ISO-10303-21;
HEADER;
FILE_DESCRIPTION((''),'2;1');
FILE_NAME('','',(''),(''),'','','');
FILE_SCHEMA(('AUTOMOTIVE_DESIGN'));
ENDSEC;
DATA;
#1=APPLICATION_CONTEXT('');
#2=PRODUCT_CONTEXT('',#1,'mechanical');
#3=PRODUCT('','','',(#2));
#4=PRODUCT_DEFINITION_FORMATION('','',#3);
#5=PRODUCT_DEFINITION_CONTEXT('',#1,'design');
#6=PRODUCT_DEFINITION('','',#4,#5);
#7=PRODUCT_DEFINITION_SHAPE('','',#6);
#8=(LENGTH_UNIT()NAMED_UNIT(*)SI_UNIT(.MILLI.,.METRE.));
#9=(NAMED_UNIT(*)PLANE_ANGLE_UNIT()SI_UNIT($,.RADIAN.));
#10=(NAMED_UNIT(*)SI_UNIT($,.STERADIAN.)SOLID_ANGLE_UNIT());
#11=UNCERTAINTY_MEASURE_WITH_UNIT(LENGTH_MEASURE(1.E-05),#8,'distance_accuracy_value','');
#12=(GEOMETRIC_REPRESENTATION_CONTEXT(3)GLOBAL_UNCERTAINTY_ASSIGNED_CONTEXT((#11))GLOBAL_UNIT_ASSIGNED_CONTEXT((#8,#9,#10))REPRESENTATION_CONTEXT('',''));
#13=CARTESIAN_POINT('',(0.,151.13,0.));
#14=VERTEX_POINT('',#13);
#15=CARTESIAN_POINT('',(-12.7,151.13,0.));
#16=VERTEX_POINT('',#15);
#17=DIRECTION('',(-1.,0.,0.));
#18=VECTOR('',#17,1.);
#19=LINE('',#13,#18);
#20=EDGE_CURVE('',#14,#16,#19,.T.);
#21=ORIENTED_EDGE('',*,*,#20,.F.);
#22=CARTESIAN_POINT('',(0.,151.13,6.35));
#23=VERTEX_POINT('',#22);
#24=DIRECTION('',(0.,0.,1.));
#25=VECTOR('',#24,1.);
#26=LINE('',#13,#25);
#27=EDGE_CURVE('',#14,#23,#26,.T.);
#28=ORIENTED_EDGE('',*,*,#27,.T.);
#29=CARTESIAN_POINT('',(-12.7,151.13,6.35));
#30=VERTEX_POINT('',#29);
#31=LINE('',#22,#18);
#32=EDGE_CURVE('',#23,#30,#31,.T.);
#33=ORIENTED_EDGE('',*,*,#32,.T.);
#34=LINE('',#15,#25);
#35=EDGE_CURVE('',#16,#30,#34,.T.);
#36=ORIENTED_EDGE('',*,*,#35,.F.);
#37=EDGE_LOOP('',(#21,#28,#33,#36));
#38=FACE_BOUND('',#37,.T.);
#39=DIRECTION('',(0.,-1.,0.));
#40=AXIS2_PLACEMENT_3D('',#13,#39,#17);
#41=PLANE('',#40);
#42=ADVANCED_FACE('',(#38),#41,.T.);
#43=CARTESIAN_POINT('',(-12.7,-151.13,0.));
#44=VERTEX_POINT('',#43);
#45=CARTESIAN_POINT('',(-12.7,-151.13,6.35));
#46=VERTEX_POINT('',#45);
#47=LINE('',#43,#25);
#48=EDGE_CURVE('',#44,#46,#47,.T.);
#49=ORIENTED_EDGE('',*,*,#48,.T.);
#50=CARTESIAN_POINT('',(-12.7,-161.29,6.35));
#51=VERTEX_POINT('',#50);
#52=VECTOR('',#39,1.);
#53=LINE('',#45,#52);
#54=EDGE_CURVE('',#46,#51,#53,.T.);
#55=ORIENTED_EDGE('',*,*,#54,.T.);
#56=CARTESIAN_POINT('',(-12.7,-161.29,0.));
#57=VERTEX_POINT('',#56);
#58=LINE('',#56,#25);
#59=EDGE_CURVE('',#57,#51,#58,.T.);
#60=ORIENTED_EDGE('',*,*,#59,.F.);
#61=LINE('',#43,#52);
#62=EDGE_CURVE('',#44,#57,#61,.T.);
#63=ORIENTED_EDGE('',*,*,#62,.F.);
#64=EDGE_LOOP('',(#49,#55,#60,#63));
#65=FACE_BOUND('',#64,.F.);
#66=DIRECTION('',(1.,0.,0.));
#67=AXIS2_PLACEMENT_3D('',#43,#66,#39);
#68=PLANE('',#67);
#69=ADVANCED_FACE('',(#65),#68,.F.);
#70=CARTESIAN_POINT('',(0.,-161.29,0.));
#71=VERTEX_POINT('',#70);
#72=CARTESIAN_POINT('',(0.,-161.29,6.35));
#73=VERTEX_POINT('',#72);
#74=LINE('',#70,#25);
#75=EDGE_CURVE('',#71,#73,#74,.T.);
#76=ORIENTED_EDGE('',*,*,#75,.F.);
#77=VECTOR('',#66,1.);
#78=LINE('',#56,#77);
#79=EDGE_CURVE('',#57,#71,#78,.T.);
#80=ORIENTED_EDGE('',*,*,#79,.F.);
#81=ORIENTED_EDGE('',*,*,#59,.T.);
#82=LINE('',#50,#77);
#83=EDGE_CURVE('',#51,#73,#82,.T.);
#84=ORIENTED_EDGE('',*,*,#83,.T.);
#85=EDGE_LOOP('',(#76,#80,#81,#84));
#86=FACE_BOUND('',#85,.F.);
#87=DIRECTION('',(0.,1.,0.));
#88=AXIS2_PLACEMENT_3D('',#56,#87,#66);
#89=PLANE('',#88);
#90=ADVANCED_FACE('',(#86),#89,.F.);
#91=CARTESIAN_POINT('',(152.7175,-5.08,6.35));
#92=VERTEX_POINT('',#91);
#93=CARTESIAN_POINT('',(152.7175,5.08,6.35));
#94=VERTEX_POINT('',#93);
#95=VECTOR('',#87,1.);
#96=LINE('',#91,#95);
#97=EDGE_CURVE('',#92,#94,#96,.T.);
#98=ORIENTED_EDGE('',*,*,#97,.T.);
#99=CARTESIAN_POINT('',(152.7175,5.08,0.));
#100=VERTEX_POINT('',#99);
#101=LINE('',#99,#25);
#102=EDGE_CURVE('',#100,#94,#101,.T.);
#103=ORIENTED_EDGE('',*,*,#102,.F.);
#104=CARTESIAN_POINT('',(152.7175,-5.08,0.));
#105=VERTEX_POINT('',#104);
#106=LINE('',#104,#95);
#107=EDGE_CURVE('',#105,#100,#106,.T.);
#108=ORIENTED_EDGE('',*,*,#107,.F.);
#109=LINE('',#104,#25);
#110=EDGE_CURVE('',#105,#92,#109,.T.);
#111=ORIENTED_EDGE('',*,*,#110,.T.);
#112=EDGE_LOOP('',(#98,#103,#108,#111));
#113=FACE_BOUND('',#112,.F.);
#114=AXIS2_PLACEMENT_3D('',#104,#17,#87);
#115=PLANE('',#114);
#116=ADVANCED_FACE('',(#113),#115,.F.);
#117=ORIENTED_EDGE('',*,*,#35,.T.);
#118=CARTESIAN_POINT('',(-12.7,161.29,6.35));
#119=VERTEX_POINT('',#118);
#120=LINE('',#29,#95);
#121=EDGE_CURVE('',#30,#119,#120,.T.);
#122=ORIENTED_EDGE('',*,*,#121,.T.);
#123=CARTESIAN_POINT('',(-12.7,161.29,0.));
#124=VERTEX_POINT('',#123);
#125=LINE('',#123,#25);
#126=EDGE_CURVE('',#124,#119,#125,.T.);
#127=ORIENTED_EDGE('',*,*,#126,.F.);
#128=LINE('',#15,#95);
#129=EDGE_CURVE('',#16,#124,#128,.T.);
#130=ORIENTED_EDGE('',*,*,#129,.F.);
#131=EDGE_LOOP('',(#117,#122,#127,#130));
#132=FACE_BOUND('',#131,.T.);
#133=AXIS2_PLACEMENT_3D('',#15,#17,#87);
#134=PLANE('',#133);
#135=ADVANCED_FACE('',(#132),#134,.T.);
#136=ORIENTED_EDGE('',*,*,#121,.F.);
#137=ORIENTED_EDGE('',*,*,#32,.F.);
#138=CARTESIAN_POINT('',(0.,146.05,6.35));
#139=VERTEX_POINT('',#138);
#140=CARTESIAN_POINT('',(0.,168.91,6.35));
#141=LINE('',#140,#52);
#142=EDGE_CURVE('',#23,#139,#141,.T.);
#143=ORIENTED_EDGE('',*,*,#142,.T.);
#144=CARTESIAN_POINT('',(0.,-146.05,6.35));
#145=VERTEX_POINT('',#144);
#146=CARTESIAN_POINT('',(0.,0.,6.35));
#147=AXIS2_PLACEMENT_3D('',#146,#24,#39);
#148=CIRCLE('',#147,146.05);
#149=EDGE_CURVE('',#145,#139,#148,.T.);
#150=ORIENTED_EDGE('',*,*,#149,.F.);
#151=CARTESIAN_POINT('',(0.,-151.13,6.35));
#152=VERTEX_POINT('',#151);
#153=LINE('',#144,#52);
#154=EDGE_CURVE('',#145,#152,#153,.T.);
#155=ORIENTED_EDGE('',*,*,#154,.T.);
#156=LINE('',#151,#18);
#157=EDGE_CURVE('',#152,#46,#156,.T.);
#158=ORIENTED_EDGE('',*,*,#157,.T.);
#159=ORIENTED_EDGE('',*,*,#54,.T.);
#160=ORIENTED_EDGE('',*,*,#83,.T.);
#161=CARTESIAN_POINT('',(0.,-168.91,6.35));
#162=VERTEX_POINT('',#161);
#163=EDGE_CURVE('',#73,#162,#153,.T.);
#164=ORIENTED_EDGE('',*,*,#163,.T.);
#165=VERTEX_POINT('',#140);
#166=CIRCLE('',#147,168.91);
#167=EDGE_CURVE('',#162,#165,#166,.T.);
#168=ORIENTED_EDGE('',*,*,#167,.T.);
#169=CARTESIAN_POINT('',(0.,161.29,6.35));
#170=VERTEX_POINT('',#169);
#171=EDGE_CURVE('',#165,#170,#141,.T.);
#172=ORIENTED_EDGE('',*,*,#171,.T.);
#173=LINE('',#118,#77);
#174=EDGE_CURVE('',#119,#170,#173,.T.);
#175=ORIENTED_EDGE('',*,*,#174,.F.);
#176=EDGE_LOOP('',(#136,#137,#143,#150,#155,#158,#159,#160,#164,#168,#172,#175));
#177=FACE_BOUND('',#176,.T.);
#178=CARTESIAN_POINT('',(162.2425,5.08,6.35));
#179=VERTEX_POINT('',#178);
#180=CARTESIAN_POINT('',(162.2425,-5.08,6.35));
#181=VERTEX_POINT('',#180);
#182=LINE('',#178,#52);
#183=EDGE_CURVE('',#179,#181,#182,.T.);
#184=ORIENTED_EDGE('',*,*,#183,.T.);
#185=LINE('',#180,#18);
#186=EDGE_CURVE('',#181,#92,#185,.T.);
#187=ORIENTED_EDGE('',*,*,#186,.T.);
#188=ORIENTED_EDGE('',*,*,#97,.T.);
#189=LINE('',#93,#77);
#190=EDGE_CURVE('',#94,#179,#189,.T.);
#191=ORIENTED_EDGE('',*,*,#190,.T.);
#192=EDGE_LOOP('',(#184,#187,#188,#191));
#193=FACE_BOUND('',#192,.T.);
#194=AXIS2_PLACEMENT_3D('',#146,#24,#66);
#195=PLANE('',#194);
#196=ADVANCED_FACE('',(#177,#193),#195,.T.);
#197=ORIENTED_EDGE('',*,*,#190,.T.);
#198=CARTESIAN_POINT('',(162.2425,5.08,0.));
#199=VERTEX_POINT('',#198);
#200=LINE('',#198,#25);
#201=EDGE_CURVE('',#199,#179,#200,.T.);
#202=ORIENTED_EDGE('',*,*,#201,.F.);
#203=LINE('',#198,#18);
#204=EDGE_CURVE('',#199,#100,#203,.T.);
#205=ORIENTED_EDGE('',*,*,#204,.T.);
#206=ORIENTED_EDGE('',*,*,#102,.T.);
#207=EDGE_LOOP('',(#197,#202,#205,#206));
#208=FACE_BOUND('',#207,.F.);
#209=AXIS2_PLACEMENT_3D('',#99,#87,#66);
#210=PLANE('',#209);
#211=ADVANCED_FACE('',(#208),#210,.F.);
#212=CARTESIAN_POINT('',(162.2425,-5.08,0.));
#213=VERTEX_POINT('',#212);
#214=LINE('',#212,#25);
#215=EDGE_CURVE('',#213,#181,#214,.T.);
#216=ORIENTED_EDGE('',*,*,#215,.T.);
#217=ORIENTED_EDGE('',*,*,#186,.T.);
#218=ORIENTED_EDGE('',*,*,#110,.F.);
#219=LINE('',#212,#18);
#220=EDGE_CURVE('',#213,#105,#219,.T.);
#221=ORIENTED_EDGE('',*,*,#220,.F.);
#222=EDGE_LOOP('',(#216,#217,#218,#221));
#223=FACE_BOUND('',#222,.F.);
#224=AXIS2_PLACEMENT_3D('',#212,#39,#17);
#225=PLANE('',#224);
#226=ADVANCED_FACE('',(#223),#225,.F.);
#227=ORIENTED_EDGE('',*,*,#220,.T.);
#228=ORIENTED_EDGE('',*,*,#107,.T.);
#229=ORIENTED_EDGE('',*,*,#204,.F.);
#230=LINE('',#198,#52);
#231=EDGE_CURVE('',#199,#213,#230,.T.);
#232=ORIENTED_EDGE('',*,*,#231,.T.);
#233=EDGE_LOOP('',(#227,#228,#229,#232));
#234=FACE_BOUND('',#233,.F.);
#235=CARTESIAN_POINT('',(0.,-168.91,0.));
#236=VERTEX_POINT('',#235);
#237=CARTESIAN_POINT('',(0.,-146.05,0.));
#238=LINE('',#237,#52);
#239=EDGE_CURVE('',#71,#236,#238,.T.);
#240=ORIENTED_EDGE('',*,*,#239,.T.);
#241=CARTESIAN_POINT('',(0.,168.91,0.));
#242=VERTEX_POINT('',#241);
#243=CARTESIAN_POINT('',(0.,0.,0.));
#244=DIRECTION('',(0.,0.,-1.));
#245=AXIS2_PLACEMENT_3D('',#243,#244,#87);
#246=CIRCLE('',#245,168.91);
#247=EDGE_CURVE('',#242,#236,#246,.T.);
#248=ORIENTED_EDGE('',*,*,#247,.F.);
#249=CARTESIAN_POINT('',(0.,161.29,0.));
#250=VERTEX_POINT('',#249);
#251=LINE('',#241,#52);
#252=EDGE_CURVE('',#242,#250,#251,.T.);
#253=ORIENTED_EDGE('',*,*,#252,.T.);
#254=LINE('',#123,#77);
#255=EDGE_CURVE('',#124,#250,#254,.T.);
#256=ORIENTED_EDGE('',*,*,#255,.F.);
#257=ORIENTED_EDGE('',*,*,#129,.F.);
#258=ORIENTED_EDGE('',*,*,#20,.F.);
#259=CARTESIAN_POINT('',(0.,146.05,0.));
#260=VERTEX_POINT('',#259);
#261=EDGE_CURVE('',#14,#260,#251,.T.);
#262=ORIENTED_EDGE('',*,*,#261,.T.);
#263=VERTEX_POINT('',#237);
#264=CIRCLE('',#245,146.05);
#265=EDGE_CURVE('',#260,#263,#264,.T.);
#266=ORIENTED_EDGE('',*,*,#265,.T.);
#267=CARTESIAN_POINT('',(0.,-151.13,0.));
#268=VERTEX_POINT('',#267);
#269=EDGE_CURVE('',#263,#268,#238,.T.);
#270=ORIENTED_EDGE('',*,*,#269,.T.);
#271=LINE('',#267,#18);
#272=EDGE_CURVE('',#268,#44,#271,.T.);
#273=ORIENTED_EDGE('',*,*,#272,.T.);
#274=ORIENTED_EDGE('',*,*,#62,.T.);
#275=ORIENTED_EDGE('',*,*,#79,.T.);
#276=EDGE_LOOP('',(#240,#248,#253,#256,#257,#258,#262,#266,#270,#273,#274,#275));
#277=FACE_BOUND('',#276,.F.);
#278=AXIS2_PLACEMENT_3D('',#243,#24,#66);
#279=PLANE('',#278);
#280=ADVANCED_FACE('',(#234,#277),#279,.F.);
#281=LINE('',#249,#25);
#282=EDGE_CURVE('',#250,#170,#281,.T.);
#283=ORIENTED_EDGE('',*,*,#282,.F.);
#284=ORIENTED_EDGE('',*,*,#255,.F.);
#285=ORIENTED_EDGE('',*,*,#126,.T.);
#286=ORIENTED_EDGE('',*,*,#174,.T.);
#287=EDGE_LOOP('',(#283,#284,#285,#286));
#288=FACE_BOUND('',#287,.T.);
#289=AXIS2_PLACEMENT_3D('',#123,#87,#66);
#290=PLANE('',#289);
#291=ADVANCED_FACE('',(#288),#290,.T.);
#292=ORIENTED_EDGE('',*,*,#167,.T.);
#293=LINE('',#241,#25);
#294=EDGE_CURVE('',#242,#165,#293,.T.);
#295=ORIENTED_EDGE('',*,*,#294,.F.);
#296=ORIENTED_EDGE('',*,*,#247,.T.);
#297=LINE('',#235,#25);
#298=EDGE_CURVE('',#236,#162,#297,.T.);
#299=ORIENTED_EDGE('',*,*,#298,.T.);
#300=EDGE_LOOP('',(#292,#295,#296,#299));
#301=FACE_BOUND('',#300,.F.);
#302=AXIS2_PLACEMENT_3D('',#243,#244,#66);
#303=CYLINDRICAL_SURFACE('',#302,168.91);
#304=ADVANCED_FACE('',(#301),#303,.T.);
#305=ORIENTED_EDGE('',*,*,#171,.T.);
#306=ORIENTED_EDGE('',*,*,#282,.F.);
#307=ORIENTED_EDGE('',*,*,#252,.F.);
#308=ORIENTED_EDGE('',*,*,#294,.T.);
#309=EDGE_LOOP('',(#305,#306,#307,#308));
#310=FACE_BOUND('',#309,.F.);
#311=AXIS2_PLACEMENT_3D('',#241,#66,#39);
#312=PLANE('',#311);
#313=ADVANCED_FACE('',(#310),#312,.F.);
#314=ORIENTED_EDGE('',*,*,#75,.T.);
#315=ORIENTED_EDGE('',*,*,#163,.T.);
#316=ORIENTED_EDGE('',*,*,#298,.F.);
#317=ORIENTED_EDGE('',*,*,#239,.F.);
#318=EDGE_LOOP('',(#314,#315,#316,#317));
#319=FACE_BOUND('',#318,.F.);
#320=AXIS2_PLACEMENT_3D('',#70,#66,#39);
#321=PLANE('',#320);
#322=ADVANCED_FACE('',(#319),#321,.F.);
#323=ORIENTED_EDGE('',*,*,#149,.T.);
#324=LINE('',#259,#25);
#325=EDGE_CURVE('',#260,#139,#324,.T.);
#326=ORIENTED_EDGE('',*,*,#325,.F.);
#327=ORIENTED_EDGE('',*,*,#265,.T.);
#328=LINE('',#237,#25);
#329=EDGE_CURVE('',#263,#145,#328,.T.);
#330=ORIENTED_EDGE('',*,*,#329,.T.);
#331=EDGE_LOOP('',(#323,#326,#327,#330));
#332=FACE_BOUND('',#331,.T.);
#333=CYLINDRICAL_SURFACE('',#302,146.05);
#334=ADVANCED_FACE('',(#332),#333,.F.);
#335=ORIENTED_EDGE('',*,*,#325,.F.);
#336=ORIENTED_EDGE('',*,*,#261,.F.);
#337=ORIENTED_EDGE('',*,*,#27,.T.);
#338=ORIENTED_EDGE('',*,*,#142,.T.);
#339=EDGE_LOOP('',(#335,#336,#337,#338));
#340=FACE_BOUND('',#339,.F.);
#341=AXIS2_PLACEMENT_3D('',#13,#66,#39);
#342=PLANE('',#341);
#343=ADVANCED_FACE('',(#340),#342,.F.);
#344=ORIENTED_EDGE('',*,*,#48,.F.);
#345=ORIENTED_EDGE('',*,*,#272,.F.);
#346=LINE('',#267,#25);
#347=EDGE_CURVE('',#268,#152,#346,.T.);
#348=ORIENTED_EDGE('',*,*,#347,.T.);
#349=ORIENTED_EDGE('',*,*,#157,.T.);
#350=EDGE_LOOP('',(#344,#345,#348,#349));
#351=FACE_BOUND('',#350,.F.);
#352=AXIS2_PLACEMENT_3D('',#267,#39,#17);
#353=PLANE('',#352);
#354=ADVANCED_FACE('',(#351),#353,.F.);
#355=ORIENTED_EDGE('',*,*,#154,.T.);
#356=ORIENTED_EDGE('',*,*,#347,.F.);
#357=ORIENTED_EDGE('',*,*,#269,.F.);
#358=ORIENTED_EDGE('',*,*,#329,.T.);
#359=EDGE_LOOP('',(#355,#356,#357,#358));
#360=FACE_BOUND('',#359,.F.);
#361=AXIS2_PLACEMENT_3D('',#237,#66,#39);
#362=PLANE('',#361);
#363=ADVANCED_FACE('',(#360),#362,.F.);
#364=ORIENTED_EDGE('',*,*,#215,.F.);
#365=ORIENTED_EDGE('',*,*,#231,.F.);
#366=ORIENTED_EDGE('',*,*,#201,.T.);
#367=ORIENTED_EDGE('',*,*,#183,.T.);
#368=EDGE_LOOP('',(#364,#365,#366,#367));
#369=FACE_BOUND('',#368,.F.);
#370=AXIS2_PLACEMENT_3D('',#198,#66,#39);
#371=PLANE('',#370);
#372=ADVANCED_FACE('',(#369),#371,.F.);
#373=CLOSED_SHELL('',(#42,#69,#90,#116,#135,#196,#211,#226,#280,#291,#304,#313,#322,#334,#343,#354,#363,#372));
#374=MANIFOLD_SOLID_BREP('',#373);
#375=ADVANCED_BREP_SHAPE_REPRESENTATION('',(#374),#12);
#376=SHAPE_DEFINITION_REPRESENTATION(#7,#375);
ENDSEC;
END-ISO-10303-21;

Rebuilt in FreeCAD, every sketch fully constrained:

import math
import FreeCAD as App
import Part
import Sketcher
Q = App.Units.Quantity


def add_polygon(sketch, points):
    """Adds a closed chain of lines whose ends are joined by coincident constraints."""
    first, n = sketch.GeometryCount, len(points)
    for a, b in zip(points, points[1:] + points[:1]):
        sketch.addGeometry(Part.LineSegment(App.Vector(*a, 0), App.Vector(*b, 0)), False)
    for i in range(n):
        sketch.addConstraint(Sketcher.Constraint("Coincident", first + i, 2, first + (i + 1) % n, 1))

doc = App.newDocument("Part")
body = doc.addObject("PartDesign::Body", "Body")

# Sketch on XY plane
sketch1 = doc.addObject("Sketcher::SketchObject", "Sketch")
body.addObject(sketch1)
sketch1.AttachmentSupport = (doc.XY_Plane, [""])
sketch1.MapMode = "FlatFace"
sketch1.addGeometry(Part.ArcOfCircle(Part.Circle(App.Vector(0, 0, 0), App.Vector(0, 0, 1), 146.05), math.radians(-90), math.radians(90)), False)  # 0
sketch1.addGeometry(Part.LineSegment(App.Vector(0, -146.05, 0), App.Vector(0, -151.13, 0)), False)  # 1
sketch1.addGeometry(Part.LineSegment(App.Vector(0, -151.13, 0), App.Vector(-12.7, -151.13, 0)), False)  # 2
sketch1.addGeometry(Part.LineSegment(App.Vector(-12.7, -151.13, 0), App.Vector(-12.7, -161.29, 0)), False)  # 3
sketch1.addGeometry(Part.LineSegment(App.Vector(-12.7, -161.29, 0), App.Vector(0, -161.29, 0)), False)  # 4
sketch1.addGeometry(Part.LineSegment(App.Vector(0, -161.29, 0), App.Vector(0, -168.91, 0)), False)  # 5
sketch1.addGeometry(Part.ArcOfCircle(Part.Circle(App.Vector(0, 0, 0), App.Vector(0, 0, 1), 168.91), math.radians(-90), math.radians(90)), False)  # 6
sketch1.addGeometry(Part.LineSegment(App.Vector(0, 168.91, 0), App.Vector(0, 161.29, 0)), False)  # 7
sketch1.addGeometry(Part.LineSegment(App.Vector(0, 161.29, 0), App.Vector(-12.7, 161.29, 0)), False)  # 8
sketch1.addGeometry(Part.LineSegment(App.Vector(-12.7, 161.29, 0), App.Vector(-12.7, 151.13, 0)), False)  # 9
sketch1.addGeometry(Part.LineSegment(App.Vector(-12.7, 151.13, 0), App.Vector(0, 151.13, 0)), False)  # 10
sketch1.addGeometry(Part.LineSegment(App.Vector(0, 151.13, 0), App.Vector(0, 146.05, 0)), False)  # 11
add_polygon(sketch1, [(152.7175, 5.08), (162.2425, 5.08), (162.2425, -5.08), (152.7175, -5.08)])  # lines 12-15
sketch1.addConstraint([
    Sketcher.Constraint("Coincident", 0, 1, 1, 1),
    Sketcher.Constraint("Coincident", 1, 2, 2, 1),
    Sketcher.Constraint("Coincident", 2, 2, 3, 1),
    Sketcher.Constraint("Coincident", 3, 2, 4, 1),
    Sketcher.Constraint("Coincident", 4, 2, 5, 1),
    Sketcher.Constraint("Coincident", 5, 2, 6, 1),
    Sketcher.Constraint("Coincident", 6, 2, 7, 1),
    Sketcher.Constraint("Coincident", 7, 2, 8, 1),
    Sketcher.Constraint("Coincident", 8, 2, 9, 1),
    Sketcher.Constraint("Coincident", 9, 2, 10, 1),
    Sketcher.Constraint("Coincident", 10, 2, 11, 1),
    Sketcher.Constraint("Coincident", 11, 2, 0, 2),
    Sketcher.Constraint("Vertical", 1),
    Sketcher.Constraint("Horizontal", 2),
    Sketcher.Constraint("Vertical", 3),
    Sketcher.Constraint("Horizontal", 4),
    Sketcher.Constraint("Vertical", 5),
    Sketcher.Constraint("Vertical", 7),
    Sketcher.Constraint("Horizontal", 8),
    Sketcher.Constraint("Vertical", 9),
    Sketcher.Constraint("Horizontal", 10),
    Sketcher.Constraint("Vertical", 11),
    Sketcher.Constraint("Horizontal", 12),
    Sketcher.Constraint("Vertical", 13),
    Sketcher.Constraint("Horizontal", 14),
    Sketcher.Constraint("Vertical", 15),
    Sketcher.Constraint("Coincident", 0, 3, -1, 1),
    Sketcher.Constraint("Coincident", 6, 3, -1, 1),
    Sketcher.Constraint("Symmetric", 4, 2, 7, 2, -1, 1),
    Sketcher.Constraint("Symmetric", 1, 2, 10, 2, -1, 1),
    Sketcher.Constraint("PointOnObject", 0, 1, -2),
    Sketcher.Constraint("PointOnObject", 4, 2, -2),
    Sketcher.Constraint("Vertical", 3, 2, 8, 2),
    Sketcher.Constraint("Equal", 9, 13),
    Sketcher.Constraint("Radius", 0, Q("5.75 in")),
    Sketcher.Constraint("Radius", 6, Q("6.65 in")),
    Sketcher.Constraint("DistanceX", 2, 2, 2, 1, Q("0.5 in")),
    Sketcher.Constraint("DistanceY", 1, 2, 1, 1, Q("0.2 in")),
    Sketcher.Constraint("DistanceY", 3, 2, 3, 1, Q("0.4 in")),
    Sketcher.Constraint("DistanceY", -1, 1, 12, 2, Q("0.2 in")),
    Sketcher.Constraint("DistanceX", 12, 1, 12, 2, Q("0.375 in")),
    Sketcher.Constraint("DistanceX", -1, 1, 12, 2, Q("6.3875 in")),
])
pad1 = doc.addObject("PartDesign::Pad", "Pad")
body.addObject(pad1)
pad1.Profile = sketch1
pad1.Length = Q("0.25 in")

doc.recompute()
